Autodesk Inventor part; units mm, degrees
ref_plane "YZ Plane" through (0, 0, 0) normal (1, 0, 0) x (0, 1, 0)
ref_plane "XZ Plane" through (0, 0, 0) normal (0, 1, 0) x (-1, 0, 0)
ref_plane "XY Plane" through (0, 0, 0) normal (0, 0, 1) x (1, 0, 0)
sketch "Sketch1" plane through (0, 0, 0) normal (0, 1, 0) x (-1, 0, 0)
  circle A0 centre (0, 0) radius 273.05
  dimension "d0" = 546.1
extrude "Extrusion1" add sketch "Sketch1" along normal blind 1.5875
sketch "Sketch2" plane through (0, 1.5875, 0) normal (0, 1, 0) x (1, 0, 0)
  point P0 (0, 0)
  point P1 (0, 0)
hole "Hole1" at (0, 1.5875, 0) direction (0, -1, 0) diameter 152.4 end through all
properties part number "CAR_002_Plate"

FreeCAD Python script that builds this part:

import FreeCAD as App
import Part
import Sketcher
from FreeCAD import Vector
Q = App.Units.Quantity

doc = App.newDocument("Part")
body = doc.addObject("PartDesign::Body", "Body")

sketch1 = body.newObject("Sketcher::SketchObject", "Sketch")
sketch1.AttachmentSupport = (doc.getObject("XZ_Plane"), [""])
sketch1.MapMode = "FlatFace"
sketch1.addGeometry(Part.Circle(Vector(0, 0, 0), Vector(0, 0, 1), 273), False)
sketch1.addConstraint(Sketcher.Constraint("Coincident", 0, 3, -1, 1))
sketch1.addConstraint(Sketcher.Constraint("Diameter", 0, Q("21.5 in")))
pad1 = body.newObject("PartDesign::Pad", "Pad")
pad1.Profile = sketch1
pad1.Length = Q("0.0625 in")
pad1.Reversed = True

sketch2 = body.newObject("Sketcher::SketchObject", "Sketch001")
sketch2.AttachmentSupport = (doc.getObject("XZ_Plane"), [""])
sketch2.MapMode = "FlatFace"
sketch2.AttachmentOffset = App.Placement(Vector(0, 0, -0.0625 * 25.4), App.Rotation())
sketch2.addGeometry(Part.Circle(Vector(0, 0, 0), Vector(0, 0, 1), 76), False)
sketch2.addConstraint(Sketcher.Constraint("Coincident", 0, 3, -1, 1))
sketch2.addConstraint(Sketcher.Constraint("Diameter", 0, Q("6 in")))
doc.recompute()
hole = body.newObject("PartDesign::Hole", "Hole")
hole.Profile = sketch2
hole.ThreadType = "None"
hole.Diameter = Q("6 in")
hole.DepthType = "ThroughAll"
hole.Reversed = True

doc.recompute()
